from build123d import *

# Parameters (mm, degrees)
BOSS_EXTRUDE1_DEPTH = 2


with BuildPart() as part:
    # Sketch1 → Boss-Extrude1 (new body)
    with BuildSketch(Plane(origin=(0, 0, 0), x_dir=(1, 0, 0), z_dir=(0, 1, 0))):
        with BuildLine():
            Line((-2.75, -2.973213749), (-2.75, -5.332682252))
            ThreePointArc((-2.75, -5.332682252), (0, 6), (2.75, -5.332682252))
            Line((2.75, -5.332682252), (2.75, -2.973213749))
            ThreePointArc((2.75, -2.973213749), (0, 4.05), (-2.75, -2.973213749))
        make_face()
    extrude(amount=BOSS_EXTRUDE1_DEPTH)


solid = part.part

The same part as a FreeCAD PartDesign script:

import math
import FreeCAD as App
import Part
import Sketcher

doc = App.newDocument("Part")
body = doc.addObject("PartDesign::Body", "Body")

# Sketch on XZ plane
sketch1 = doc.addObject("Sketcher::SketchObject", "Sketch")
body.addObject(sketch1)
sketch1.AttachmentSupport = (doc.XZ_Plane, [""])
sketch1.MapMode = "FlatFace"
sketch1.addGeometry([
    Part.LineSegment(App.Vector(-2.8, 5.3, 0), App.Vector(-2.8, 3, 0)),
    Part.ArcOfCircle(Part.Circle(App.Vector(0, 0, 0), App.Vector(0, 0, 1), 4), math.radians(133), math.radians(407)),
    Part.LineSegment(App.Vector(2.8, 3, 0), App.Vector(2.8, 5.3, 0)),
    Part.ArcOfCircle(Part.Circle(App.Vector(0, 0, 0), App.Vector(0, 0, 1), 6), math.radians(117), math.radians(423)),
], False)
sketch1.addConstraint([
    Sketcher.Constraint("Coincident", 0, 2, 1, 1),
    Sketcher.Constraint("Coincident", 1, 2, 2, 1),
    Sketcher.Constraint("Coincident", 2, 2, 3, 2),
    Sketcher.Constraint("Coincident", 3, 1, 0, 1),
    Sketcher.Constraint("Vertical", 0),
    Sketcher.Constraint("Vertical", 2),
    Sketcher.Constraint("Coincident", 1, 3, -1, 1),
    Sketcher.Constraint("Coincident", 3, 3, -1, 1),
    Sketcher.Constraint("Horizontal", 0, 2, 1, 2),
    Sketcher.Constraint("Radius", 3, 6.0),
    Sketcher.Constraint("Radius", 1, 4.05),
    Sketcher.Constraint("DistanceX", 0, 2, 1, 2, 5.5),
])
pad1 = doc.addObject("PartDesign::Pad", "Pad")
body.addObject(pad1)
pad1.Profile = sketch1
pad1.Length = 2
pad1.Reversed = True

doc.recompute()
